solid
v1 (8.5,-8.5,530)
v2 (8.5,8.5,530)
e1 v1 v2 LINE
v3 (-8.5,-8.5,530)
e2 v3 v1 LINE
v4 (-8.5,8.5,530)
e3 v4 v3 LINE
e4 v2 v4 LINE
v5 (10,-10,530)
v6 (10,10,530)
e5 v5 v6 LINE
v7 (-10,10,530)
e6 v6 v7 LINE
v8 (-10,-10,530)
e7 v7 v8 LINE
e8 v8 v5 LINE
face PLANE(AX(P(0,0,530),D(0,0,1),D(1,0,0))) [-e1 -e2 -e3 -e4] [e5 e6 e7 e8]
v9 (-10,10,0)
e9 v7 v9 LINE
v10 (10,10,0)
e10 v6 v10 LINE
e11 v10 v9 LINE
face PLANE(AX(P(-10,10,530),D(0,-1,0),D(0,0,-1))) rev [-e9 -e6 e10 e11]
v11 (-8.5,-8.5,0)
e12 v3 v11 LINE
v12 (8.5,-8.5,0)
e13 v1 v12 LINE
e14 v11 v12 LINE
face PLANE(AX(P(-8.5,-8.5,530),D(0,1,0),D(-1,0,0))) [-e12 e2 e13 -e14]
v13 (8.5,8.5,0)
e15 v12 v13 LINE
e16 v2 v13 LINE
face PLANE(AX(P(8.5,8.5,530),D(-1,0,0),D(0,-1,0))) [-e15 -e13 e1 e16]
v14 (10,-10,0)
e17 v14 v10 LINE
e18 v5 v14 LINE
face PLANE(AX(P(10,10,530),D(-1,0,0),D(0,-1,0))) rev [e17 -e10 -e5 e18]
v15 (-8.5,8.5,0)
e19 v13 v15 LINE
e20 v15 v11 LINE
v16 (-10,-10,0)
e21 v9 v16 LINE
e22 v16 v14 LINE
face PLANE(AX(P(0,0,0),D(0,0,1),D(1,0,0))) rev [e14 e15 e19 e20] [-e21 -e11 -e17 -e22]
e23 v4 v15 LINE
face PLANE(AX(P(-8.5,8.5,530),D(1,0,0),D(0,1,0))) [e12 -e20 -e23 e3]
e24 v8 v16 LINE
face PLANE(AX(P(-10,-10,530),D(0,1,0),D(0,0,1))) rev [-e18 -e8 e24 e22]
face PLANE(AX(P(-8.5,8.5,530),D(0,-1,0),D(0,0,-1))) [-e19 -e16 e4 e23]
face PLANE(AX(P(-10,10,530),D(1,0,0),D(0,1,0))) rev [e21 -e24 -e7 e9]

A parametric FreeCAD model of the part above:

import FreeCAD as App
import Part
import Sketcher
from FreeCAD import Vector
Q = App.Units.Quantity


def add_polygon(sketch, points):
    """Adds a closed chain of lines whose ends are joined by coincident constraints."""
    first, n = sketch.GeometryCount, len(points)
    for a, b in zip(points, points[1:] + points[:1]):
        sketch.addGeometry(Part.LineSegment(App.Vector(*a, 0), App.Vector(*b, 0)), False)
    for i in range(n):
        sketch.addConstraint(Sketcher.Constraint("Coincident", first + i, 2, first + (i + 1) % n, 1))

doc = App.newDocument("Part")
params = doc.addObject("Spreadsheet::Sheet", "Params")
for row, (alias, value) in enumerate([
    ("sketch1_width", "20 mm"),
    ("sketch1_width2", "17 mm"),
    ("pad1_length", "530 mm"),
], start=1):
    params.set(f"A{row}", alias)
    params.set(f"B{row}", "=" + value)
    params.setAlias(f"B{row}", alias)

body = doc.addObject("PartDesign::Body", "Body")

# Sketch on XY plane
sketch1 = body.newObject("Sketcher::SketchObject", "Sketch")
sketch1.AttachmentSupport = (doc.getObject("XY_Plane"), [""])
sketch1.MapMode = "FlatFace"
add_polygon(sketch1, [(-10, 10), (-10, -10), (10, -10), (10, 10)])  # lines 0-3
add_polygon(sketch1, [(8, -8), (-8, -8), (-8, 8), (8, 8)])  # lines 4-7
sketch1.addConstraint([
    Sketcher.Constraint("Vertical", 0),
    Sketcher.Constraint("Horizontal", 1),
    Sketcher.Constraint("Vertical", 2),
    Sketcher.Constraint("Horizontal", 3),
    Sketcher.Constraint("Horizontal", 4),
    Sketcher.Constraint("Vertical", 5),
    Sketcher.Constraint("Horizontal", 6),
    Sketcher.Constraint("Vertical", 7),
    Sketcher.Constraint("Symmetric", 0, 2, 2, 2, -1, 1),
    Sketcher.Constraint("Symmetric", 4, 2, 6, 2, -1, 1),
    Sketcher.Constraint("Equal", 3, 0),
    Sketcher.Constraint("Equal", 6, 5),
    Sketcher.Constraint("DistanceX", 1, 1, 1, 2, Q("20 mm")),
    Sketcher.Constraint("DistanceX", 4, 2, 4, 1, Q("17 mm")),
])
sketch1.setExpression("Constraints[20]", "Params.sketch1_width")
sketch1.setExpression("Constraints[21]", "Params.sketch1_width2")
pad1 = body.newObject("PartDesign::Pad", "Pad")
pad1.Profile = sketch1
pad1.setExpression("Length", "Params.pad1_length")

doc.recompute()
